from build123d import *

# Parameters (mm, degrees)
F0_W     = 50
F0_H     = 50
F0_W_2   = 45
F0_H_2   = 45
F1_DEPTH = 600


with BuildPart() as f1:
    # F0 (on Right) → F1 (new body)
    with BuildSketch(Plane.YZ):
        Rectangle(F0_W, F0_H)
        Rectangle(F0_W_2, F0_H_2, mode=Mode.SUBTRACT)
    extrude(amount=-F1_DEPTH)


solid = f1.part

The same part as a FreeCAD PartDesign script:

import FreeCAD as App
import Part
import Sketcher

doc = App.newDocument("Part")
params = doc.addObject("Spreadsheet::Sheet", "Params")
for row, (alias, value) in enumerate([
    ("sketch1_width", "50 mm"),
    ("sketch1_width2", "45 mm"),
    ("pad1_length", "600 mm"),
], start=1):
    params.set(f"A{row}", alias)
    params.set(f"B{row}", "=" + value)
    params.setAlias(f"B{row}", alias)

body = doc.addObject("PartDesign::Body", "Body")

# Sketch on YZ plane
sketch1 = doc.addObject("Sketcher::SketchObject", "Sketch")
body.addObject(sketch1)
sketch1.AttachmentSupport = (doc.YZ_Plane, [""])
sketch1.MapMode = "FlatFace"
sketch1.addGeometry(Part.LineSegment(App.Vector(-25, 25, 0), App.Vector(-25, -25, 0)), False)
sketch1.addGeometry(Part.LineSegment(App.Vector(-25, -25, 0), App.Vector(25, -25, 0)), False)
sketch1.addGeometry(Part.LineSegment(App.Vector(25, -25, 0), App.Vector(25, 25, 0)), False)
sketch1.addGeometry(Part.LineSegment(App.Vector(25, 25, 0), App.Vector(-25, 25, 0)), False)
sketch1.addGeometry(Part.LineSegment(App.Vector(22.5, -22.5, 0), App.Vector(-22.5, -22.5, 0)), False)
sketch1.addGeometry(Part.LineSegment(App.Vector(-22.5, -22.5, 0), App.Vector(-22.5, 22.5, 0)), False)
sketch1.addGeometry(Part.LineSegment(App.Vector(-22.5, 22.5, 0), App.Vector(22.5, 22.5, 0)), False)
sketch1.addGeometry(Part.LineSegment(App.Vector(22.5, 22.5, 0), App.Vector(22.5, -22.5, 0)), False)
sketch1.addConstraint(Sketcher.Constraint("Coincident", 0, 2, 1, 1))
sketch1.addConstraint(Sketcher.Constraint("Coincident", 1, 2, 2, 1))
sketch1.addConstraint(Sketcher.Constraint("Coincident", 2, 2, 3, 1))
sketch1.addConstraint(Sketcher.Constraint("Coincident", 3, 2, 0, 1))
sketch1.addConstraint(Sketcher.Constraint("Coincident", 4, 2, 5, 1))
sketch1.addConstraint(Sketcher.Constraint("Coincident", 5, 2, 6, 1))
sketch1.addConstraint(Sketcher.Constraint("Coincident", 6, 2, 7, 1))
sketch1.addConstraint(Sketcher.Constraint("Coincident", 7, 2, 4, 1))
sketch1.addConstraint(Sketcher.Constraint("Vertical", 0))
sketch1.addConstraint(Sketcher.Constraint("Horizontal", 1))
sketch1.addConstraint(Sketcher.Constraint("Vertical", 2))
sketch1.addConstraint(Sketcher.Constraint("Horizontal", 3))
sketch1.addConstraint(Sketcher.Constraint("Horizontal", 4))
sketch1.addConstraint(Sketcher.Constraint("Vertical", 5))
sketch1.addConstraint(Sketcher.Constraint("Horizontal", 6))
sketch1.addConstraint(Sketcher.Constraint("Vertical", 7))
sketch1.addConstraint(Sketcher.Constraint("Symmetric", 0, 2, 2, 2, -1, 1))
sketch1.addConstraint(Sketcher.Constraint("Symmetric", 4, 2, 6, 2, -1, 1))
sketch1.addConstraint(Sketcher.Constraint("Equal", 3, 0))
sketch1.addConstraint(Sketcher.Constraint("Equal", 6, 5))
sketch1.addConstraint(Sketcher.Constraint("DistanceX", 1, 1, 1, 2, 50.0))
sketch1.addConstraint(Sketcher.Constraint("DistanceX", 4, 2, 4, 1, 45.0))
sketch1.setExpression("Constraints[20]", "Params.sketch1_width")
sketch1.setExpression("Constraints[21]", "Params.sketch1_width2")
pad1 = doc.addObject("PartDesign::Pad", "Pad")
body.addObject(pad1)
pad1.Profile = sketch1
pad1.setExpression("Length", "Params.pad1_length")
pad1.Reversed = True

doc.recompute()
